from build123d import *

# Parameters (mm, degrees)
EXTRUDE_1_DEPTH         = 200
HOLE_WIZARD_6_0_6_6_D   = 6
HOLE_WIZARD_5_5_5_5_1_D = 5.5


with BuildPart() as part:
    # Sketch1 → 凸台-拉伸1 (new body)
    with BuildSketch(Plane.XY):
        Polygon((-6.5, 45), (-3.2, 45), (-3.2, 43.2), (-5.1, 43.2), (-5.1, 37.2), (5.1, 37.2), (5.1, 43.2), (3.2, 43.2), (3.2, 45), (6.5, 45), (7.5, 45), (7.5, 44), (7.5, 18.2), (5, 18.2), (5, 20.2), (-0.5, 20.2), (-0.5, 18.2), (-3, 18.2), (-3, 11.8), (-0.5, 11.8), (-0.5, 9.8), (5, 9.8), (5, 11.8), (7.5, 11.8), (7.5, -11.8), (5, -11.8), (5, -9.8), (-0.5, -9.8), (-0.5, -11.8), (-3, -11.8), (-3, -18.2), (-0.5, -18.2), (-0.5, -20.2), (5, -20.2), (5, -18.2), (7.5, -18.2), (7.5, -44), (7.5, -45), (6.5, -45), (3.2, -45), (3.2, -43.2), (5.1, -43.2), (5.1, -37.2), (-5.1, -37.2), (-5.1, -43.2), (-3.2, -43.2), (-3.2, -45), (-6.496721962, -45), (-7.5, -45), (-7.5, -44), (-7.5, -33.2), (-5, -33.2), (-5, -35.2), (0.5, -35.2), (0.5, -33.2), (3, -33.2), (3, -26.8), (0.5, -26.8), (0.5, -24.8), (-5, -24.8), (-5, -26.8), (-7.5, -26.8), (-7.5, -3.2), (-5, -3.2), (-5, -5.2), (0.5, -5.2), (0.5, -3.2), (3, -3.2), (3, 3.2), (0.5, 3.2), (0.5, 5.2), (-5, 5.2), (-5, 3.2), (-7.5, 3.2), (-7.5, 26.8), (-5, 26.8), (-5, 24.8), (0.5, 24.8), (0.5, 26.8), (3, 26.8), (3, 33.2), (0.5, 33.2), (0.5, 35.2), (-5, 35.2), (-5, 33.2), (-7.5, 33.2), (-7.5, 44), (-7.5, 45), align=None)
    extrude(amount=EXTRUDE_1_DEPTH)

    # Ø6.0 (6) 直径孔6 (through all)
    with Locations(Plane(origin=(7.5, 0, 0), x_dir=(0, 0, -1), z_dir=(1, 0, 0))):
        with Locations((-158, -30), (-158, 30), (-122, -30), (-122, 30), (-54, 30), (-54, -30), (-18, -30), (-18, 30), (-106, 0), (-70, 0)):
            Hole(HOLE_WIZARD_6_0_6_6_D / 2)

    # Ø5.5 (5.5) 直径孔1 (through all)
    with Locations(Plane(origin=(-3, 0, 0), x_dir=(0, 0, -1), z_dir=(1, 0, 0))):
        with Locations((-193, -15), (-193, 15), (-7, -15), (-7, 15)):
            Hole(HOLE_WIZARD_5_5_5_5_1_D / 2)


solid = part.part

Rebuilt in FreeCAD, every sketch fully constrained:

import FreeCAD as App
import Part
import Sketcher
from FreeCAD import Vector
Q = App.Units.Quantity

doc = App.newDocument("Part")
params = doc.addObject("Spreadsheet::Sheet", "Params")
for row, (alias, value) in enumerate([
    ("sketch1_height", "2 mm"),
    ("sketch1_height2", "6 mm"),
    ("sketch1_width", "4.3 mm"),
    ("sketch1_width2", "2.5 mm"),
    ("sketch1_width3", "5.5 mm"),
    ("pad1_length", "200 mm"),
    ("sketch2_diameter", "6 mm"),
    ("hole_diameter", "6 mm"),
    ("sketch3_diameter", "5.5 mm"),
    ("hole2_diameter", "5.5 mm"),
], start=1):
    params.set(f"A{row}", alias)
    params.set(f"B{row}", "=" + value)
    params.setAlias(f"B{row}", alias)

body = doc.addObject("PartDesign::Body", "Body")

# Sketch on XY plane
sketch1 = body.newObject("Sketcher::SketchObject", "Sketch")
sketch1.AttachmentSupport = (doc.getObject("XY_Plane"), [""])
sketch1.MapMode = "FlatFace"
sketch1.addGeometry([
    Part.LineSegment(Vector(-3.2, 45, 0), Vector(-7.5, 45, 0)),  # 0
    Part.LineSegment(Vector(-7.5, 45, 0), Vector(-7.5, 33.2, 0)),  # 1
    Part.LineSegment(Vector(-7.5, 33.2, 0), Vector(-5, 33.2, 0)),  # 2
    Part.LineSegment(Vector(-5, 33.2, 0), Vector(-5, 35.2, 0)),  # 3
    Part.LineSegment(Vector(-5, 35.2, 0), Vector(0.5, 35.2, 0)),  # 4
    Part.LineSegment(Vector(0.5, 35.2, 0), Vector(0.5, 33.2, 0)),  # 5
    Part.LineSegment(Vector(0.5, 33.2, 0), Vector(3, 33.2, 0)),  # 6
    Part.LineSegment(Vector(3, 33.2, 0), Vector(3, 26.8, 0)),  # 7
    Part.LineSegment(Vector(3, 26.8, 0), Vector(0.5, 26.8, 0)),  # 8
    Part.LineSegment(Vector(0.5, 26.8, 0), Vector(0.5, 24.8, 0)),  # 9
    Part.LineSegment(Vector(0.5, 24.8, 0), Vector(-5, 24.8, 0)),  # 10
    Part.LineSegment(Vector(-5, 24.8, 0), Vector(-5, 26.8, 0)),  # 11
    Part.LineSegment(Vector(-5, 26.8, 0), Vector(-7.5, 26.8, 0)),  # 12
    Part.LineSegment(Vector(-7.5, 26.8, 0), Vector(-7.5, 3.2, 0)),  # 13
    Part.LineSegment(Vector(-7.5, 3.2, 0), Vector(-5, 3.2, 0)),  # 14
    Part.LineSegment(Vector(-5, 3.2, 0), Vector(-5, 5.2, 0)),  # 15
    Part.LineSegment(Vector(-5, 5.2, 0), Vector(0.5, 5.2, 0)),  # 16
    Part.LineSegment(Vector(0.5, 5.2, 0), Vector(0.5, 3.2, 0)),  # 17
    Part.LineSegment(Vector(0.5, 3.2, 0), Vector(3, 3.2, 0)),  # 18
    Part.LineSegment(Vector(3, 3.2, 0), Vector(3, -3.2, 0)),  # 19
    Part.LineSegment(Vector(3, -3.2, 0), Vector(0.5, -3.2, 0)),  # 20
    Part.LineSegment(Vector(0.5, -3.2, 0), Vector(0.5, -5.2, 0)),  # 21
    Part.LineSegment(Vector(0.5, -5.2, 0), Vector(-5, -5.2, 0)),  # 22
    Part.LineSegment(Vector(-5, -5.2, 0), Vector(-5, -3.2, 0)),  # 23
    Part.LineSegment(Vector(-5, -3.2, 0), Vector(-7.5, -3.2, 0)),  # 24
    Part.LineSegment(Vector(-7.5, -3.2, 0), Vector(-7.5, -26.8, 0)),  # 25
    Part.LineSegment(Vector(-7.5, -26.8, 0), Vector(-5, -26.8, 0)),  # 26
    Part.LineSegment(Vector(-5, -26.8, 0), Vector(-5, -24.8, 0)),  # 27
    Part.LineSegment(Vector(-5, -24.8, 0), Vector(0.5, -24.8, 0)),  # 28
    Part.LineSegment(Vector(0.5, -24.8, 0), Vector(0.5, -26.8, 0)),  # 29
    Part.LineSegment(Vector(0.5, -26.8, 0), Vector(3, -26.8, 0)),  # 30
    Part.LineSegment(Vector(3, -26.8, 0), Vector(3, -33.2, 0)),  # 31
    Part.LineSegment(Vector(3, -33.2, 0), Vector(0.5, -33.2, 0)),  # 32
    Part.LineSegment(Vector(0.5, -33.2, 0), Vector(0.5, -35.2, 0)),  # 33
    Part.LineSegment(Vector(0.5, -35.2, 0), Vector(-5, -35.2, 0)),  # 34
    Part.LineSegment(Vector(-5, -35.2, 0), Vector(-5, -33.2, 0)),  # 35
    Part.LineSegment(Vector(-5, -33.2, 0), Vector(-7.5, -33.2, 0)),  # 36
    Part.LineSegment(Vector(-7.5, -33.2, 0), Vector(-7.5, -45, 0)),  # 37
    Part.LineSegment(Vector(-7.5, -45, 0), Vector(-3.2, -45, 0)),  # 38
    Part.LineSegment(Vector(-3.2, -45, 0), Vector(-3.2, -43.2, 0)),  # 39
    Part.LineSegment(Vector(-3.2, -43.2, 0), Vector(-5.1, -43.2, 0)),  # 40
    Part.LineSegment(Vector(-5.1, -43.2, 0), Vector(-5.1, -37.2, 0)),  # 41
    Part.LineSegment(Vector(-5.1, -37.2, 0), Vector(5.1, -37.2, 0)),  # 42
    Part.LineSegment(Vector(5.1, -37.2, 0), Vector(5.1, -43.2, 0)),  # 43
    Part.LineSegment(Vector(5.1, -43.2, 0), Vector(3.2, -43.2, 0)),  # 44
    Part.LineSegment(Vector(3.2, -43.2, 0), Vector(3.2, -45, 0)),  # 45
    Part.LineSegment(Vector(3.2, -45, 0), Vector(7.5, -45, 0)),  # 46
    Part.LineSegment(Vector(7.5, -45, 0), Vector(7.5, -18.2, 0)),  # 47
    Part.LineSegment(Vector(7.5, -18.2, 0), Vector(5, -18.2, 0)),  # 48
    Part.LineSegment(Vector(5, -18.2, 0), Vector(5, -20.2, 0)),  # 49
    Part.LineSegment(Vector(5, -20.2, 0), Vector(-0.5, -20.2, 0)),  # 50
    Part.LineSegment(Vector(-0.5, -20.2, 0), Vector(-0.5, -18.2, 0)),  # 51
    Part.LineSegment(Vector(-0.5, -18.2, 0), Vector(-3, -18.2, 0)),  # 52
    Part.LineSegment(Vector(-3, -18.2, 0), Vector(-3, -11.8, 0)),  # 53
    Part.LineSegment(Vector(-3, -11.8, 0), Vector(-0.5, -11.8, 0)),  # 54
    Part.LineSegment(Vector(-0.5, -11.8, 0), Vector(-0.5, -9.8, 0)),  # 55
    Part.LineSegment(Vector(-0.5, -9.8, 0), Vector(5, -9.8, 0)),  # 56
    Part.LineSegment(Vector(5, -9.8, 0), Vector(5, -11.8, 0)),  # 57
    Part.LineSegment(Vector(5, -11.8, 0), Vector(7.5, -11.8, 0)),  # 58
    Part.LineSegment(Vector(7.5, -11.8, 0), Vector(7.5, 11.8, 0)),  # 59
    Part.LineSegment(Vector(7.5, 11.8, 0), Vector(5, 11.8, 0)),  # 60
    Part.LineSegment(Vector(5, 11.8, 0), Vector(5, 9.8, 0)),  # 61
    Part.LineSegment(Vector(5, 9.8, 0), Vector(-0.5, 9.8, 0)),  # 62
    Part.LineSegment(Vector(-0.5, 9.8, 0), Vector(-0.5, 11.8, 0)),  # 63
    Part.LineSegment(Vector(-0.5, 11.8, 0), Vector(-3, 11.8, 0)),  # 64
    Part.LineSegment(Vector(-3, 11.8, 0), Vector(-3, 18.2, 0)),  # 65
    Part.LineSegment(Vector(-3, 18.2, 0), Vector(-0.5, 18.2, 0)),  # 66
    Part.LineSegment(Vector(-0.5, 18.2, 0), Vector(-0.5, 20.2, 0)),  # 67
    Part.LineSegment(Vector(-0.5, 20.2, 0), Vector(5, 20.2, 0)),  # 68
    Part.LineSegment(Vector(5, 20.2, 0), Vector(5, 18.2, 0)),  # 69
    Part.LineSegment(Vector(5, 18.2, 0), Vector(7.5, 18.2, 0)),  # 70
    Part.LineSegment(Vector(7.5, 18.2, 0), Vector(7.5, 45, 0)),  # 71
    Part.LineSegment(Vector(7.5, 45, 0), Vector(3.2, 45, 0)),  # 72
    Part.LineSegment(Vector(3.2, 45, 0), Vector(3.2, 43.2, 0)),  # 73
    Part.LineSegment(Vector(3.2, 43.2, 0), Vector(5.1, 43.2, 0)),  # 74
    Part.LineSegment(Vector(5.1, 43.2, 0), Vector(5.1, 37.2, 0)),  # 75
    Part.LineSegment(Vector(5.1, 37.2, 0), Vector(-5.1, 37.2, 0)),  # 76
    Part.LineSegment(Vector(-5.1, 37.2, 0), Vector(-5.1, 43.2, 0)),  # 77
    Part.LineSegment(Vector(-5.1, 43.2, 0), Vector(-3.2, 43.2, 0)),  # 78
    Part.LineSegment(Vector(-3.2, 43.2, 0), Vector(-3.2, 45, 0)),  # 79
], False)
sketch1.addConstraint([
    Sketcher.Constraint("Coincident", 0, 2, 1, 1),
    Sketcher.Constraint("Coincident", 1, 2, 2, 1),
    Sketcher.Constraint("Coincident", 2, 2, 3, 1),
    Sketcher.Constraint("Coincident", 3, 2, 4, 1),
    Sketcher.Constraint("Coincident", 4, 2, 5, 1),
    Sketcher.Constraint("Coincident", 5, 2, 6, 1),
    Sketcher.Constraint("Coincident", 6, 2, 7, 1),
    Sketcher.Constraint("Coincident", 7, 2, 8, 1),
    Sketcher.Constraint("Coincident", 8, 2, 9, 1),
    Sketcher.Constraint("Coincident", 9, 2, 10, 1),
    Sketcher.Constraint("Coincident", 10, 2, 11, 1),
    Sketcher.Constraint("Coincident", 11, 2, 12, 1),
    Sketcher.Constraint("Coincident", 12, 2, 13, 1),
    Sketcher.Constraint("Coincident", 13, 2, 14, 1),
    Sketcher.Constraint("Coincident", 14, 2, 15, 1),
    Sketcher.Constraint("Coincident", 15, 2, 16, 1),
    Sketcher.Constraint("Coincident", 16, 2, 17, 1),
    Sketcher.Constraint("Coincident", 17, 2, 18, 1),
    Sketcher.Constraint("Coincident", 18, 2, 19, 1),
    Sketcher.Constraint("Coincident", 19, 2, 20, 1),
    Sketcher.Constraint("Coincident", 20, 2, 21, 1),
    Sketcher.Constraint("Coincident", 21, 2, 22, 1),
    Sketcher.Constraint("Coincident", 22, 2, 23, 1),
    Sketcher.Constraint("Coincident", 23, 2, 24, 1),
    Sketcher.Constraint("Coincident", 24, 2, 25, 1),
    Sketcher.Constraint("Coincident", 25, 2, 26, 1),
    Sketcher.Constraint("Coincident", 26, 2, 27, 1),
    Sketcher.Constraint("Coincident", 27, 2, 28, 1),
    Sketcher.Constraint("Coincident", 28, 2, 29, 1),
    Sketcher.Constraint("Coincident", 29, 2, 30, 1),
    Sketcher.Constraint("Coincident", 30, 2, 31, 1),
    Sketcher.Constraint("Coincident", 31, 2, 32, 1),
    Sketcher.Constraint("Coincident", 32, 2, 33, 1),
    Sketcher.Constraint("Coincident", 33, 2, 34, 1),
    Sketcher.Constraint("Coincident", 34, 2, 35, 1),
    Sketcher.Constraint("Coincident", 35, 2, 36, 1),
    Sketcher.Constraint("Coincident", 36, 2, 37, 1),
    Sketcher.Constraint("Coincident", 37, 2, 38, 1),
    Sketcher.Constraint("Coincident", 38, 2, 39, 1),
    Sketcher.Constraint("Coincident", 39, 2, 40, 1),
    Sketcher.Constraint("Coincident", 40, 2, 41, 1),
    Sketcher.Constraint("Coincident", 41, 2, 42, 1),
    Sketcher.Constraint("Coincident", 42, 2, 43, 1),
    Sketcher.Constraint("Coincident", 43, 2, 44, 1),
    Sketcher.Constraint("Coincident", 44, 2, 45, 1),
    Sketcher.Constraint("Coincident", 45, 2, 46, 1),
    Sketcher.Constraint("Coincident", 46, 2, 47, 1),
    Sketcher.Constraint("Coincident", 47, 2, 48, 1),
    Sketcher.Constraint("Coincident", 48, 2, 49, 1),
    Sketcher.Constraint("Coincident", 49, 2, 50, 1),
    Sketcher.Constraint("Coincident", 50, 2, 51, 1),
    Sketcher.Constraint("Coincident", 51, 2, 52, 1),
    Sketcher.Constraint("Coincident", 52, 2, 53, 1),
    Sketcher.Constraint("Coincident", 53, 2, 54, 1),
    Sketcher.Constraint("Coincident", 54, 2, 55, 1),
    Sketcher.Constraint("Coincident", 55, 2, 56, 1),
    Sketcher.Constraint("Coincident", 56, 2, 57, 1),
    Sketcher.Constraint("Coincident", 57, 2, 58, 1),
    Sketcher.Constraint("Coincident", 58, 2, 59, 1),
    Sketcher.Constraint("Coincident", 59, 2, 60, 1),
    Sketcher.Constraint("Coincident", 60, 2, 61, 1),
    Sketcher.Constraint("Coincident", 61, 2, 62, 1),
    Sketcher.Constraint("Coincident", 62, 2, 63, 1),
    Sketcher.Constraint("Coincident", 63, 2, 64, 1),
    Sketcher.Constraint("Coincident", 64, 2, 65, 1),
    Sketcher.Constraint("Coincident", 65, 2, 66, 1),
    Sketcher.Constraint("Coincident", 66, 2, 67, 1),
    Sketcher.Constraint("Coincident", 67, 2, 68, 1),
    Sketcher.Constraint("Coincident", 68, 2, 69, 1),
    Sketcher.Constraint("Coincident", 69, 2, 70, 1),
    Sketcher.Constraint("Coincident", 70, 2, 71, 1),
    Sketcher.Constraint("Coincident", 71, 2, 72, 1),
    Sketcher.Constraint("Coincident", 72, 2, 73, 1),
    Sketcher.Constraint("Coincident", 73, 2, 74, 1),
    Sketcher.Constraint("Coincident", 74, 2, 75, 1),
    Sketcher.Constraint("Coincident", 75, 2, 76, 1),
    Sketcher.Constraint("Coincident", 76, 2, 77, 1),
    Sketcher.Constraint("Coincident", 77, 2, 78, 1),
    Sketcher.Constraint("Coincident", 78, 2, 79, 1),
    Sketcher.Constraint("Coincident", 79, 2, 0, 1),
    Sketcher.Constraint("Horizontal", 0),
    Sketcher.Constraint("Vertical", 1),
    Sketcher.Constraint("Horizontal", 2),
    Sketcher.Constraint("Vertical", 3),
    Sketcher.Constraint("Horizontal", 4),
    Sketcher.Constraint("Vertical", 5),
    Sketcher.Constraint("Horizontal", 6),
    Sketcher.Constraint("Vertical", 7),
    Sketcher.Constraint("Horizontal", 8),
    Sketcher.Constraint("Vertical", 9),
    Sketcher.Constraint("Horizontal", 10),
    Sketcher.Constraint("Vertical", 11),
    Sketcher.Constraint("Horizontal", 12),
    Sketcher.Constraint("Vertical", 13),
    Sketcher.Constraint("Horizontal", 14),
    Sketcher.Constraint("Vertical", 15),
    Sketcher.Constraint("Horizontal", 16),
    Sketcher.Constraint("Vertical", 17),
    Sketcher.Constraint("Horizontal", 18),
    Sketcher.Constraint("Vertical", 19),
    Sketcher.Constraint("Horizontal", 20),
    Sketcher.Constraint("Vertical", 21),
    Sketcher.Constraint("Horizontal", 22),
    Sketcher.Constraint("Vertical", 23),
    Sketcher.Constraint("Horizontal", 24),
    Sketcher.Constraint("Vertical", 25),
    Sketcher.Constraint("Horizontal", 26),
    Sketcher.Constraint("Vertical", 27),
    Sketcher.Constraint("Horizontal", 28),
    Sketcher.Constraint("Vertical", 29),
    Sketcher.Constraint("Horizontal", 30),
    Sketcher.Constraint("Vertical", 31),
    Sketcher.Constraint("Horizontal", 32),
    Sketcher.Constraint("Vertical", 33),
    Sketcher.Constraint("Horizontal", 34),
    Sketcher.Constraint("Vertical", 35),
    Sketcher.Constraint("Horizontal", 36),
    Sketcher.Constraint("Vertical", 37),
    Sketcher.Constraint("Horizontal", 38),
    Sketcher.Constraint("Vertical", 39),
    Sketcher.Constraint("Horizontal", 40),
    Sketcher.Constraint("Vertical", 41),
    Sketcher.Constraint("Horizontal", 42),
    Sketcher.Constraint("Vertical", 43),
    Sketcher.Constraint("Horizontal", 44),
    Sketcher.Constraint("Vertical", 45),
    Sketcher.Constraint("Horizontal", 46),
    Sketcher.Constraint("Vertical", 47),
    Sketcher.Constraint("Horizontal", 48),
    Sketcher.Constraint("Vertical", 49),
    Sketcher.Constraint("Horizontal", 50),
    Sketcher.Constraint("Vertical", 51),
    Sketcher.Constraint("Horizontal", 52),
    Sketcher.Constraint("Vertical", 53),
    Sketcher.Constraint("Horizontal", 54),
    Sketcher.Constraint("Vertical", 55),
    Sketcher.Constraint("Horizontal", 56),
    Sketcher.Constraint("Vertical", 57),
    Sketcher.Constraint("Horizontal", 58),
    Sketcher.Constraint("Vertical", 59),
    Sketcher.Constraint("Horizontal", 60),
    Sketcher.Constraint("Vertical", 61),
    Sketcher.Constraint("Horizontal", 62),
    Sketcher.Constraint("Vertical", 63),
    Sketcher.Constraint("Horizontal", 64),
    Sketcher.Constraint("Vertical", 65),
    Sketcher.Constraint("Horizontal", 66),
    Sketcher.Constraint("Vertical", 67),
    Sketcher.Constraint("Horizontal", 68),
    Sketcher.Constraint("Vertical", 69),
    Sketcher.Constraint("Horizontal", 70),
    Sketcher.Constraint("Vertical", 71),
    Sketcher.Constraint("Horizontal", 72),
    Sketcher.Constraint("Vertical", 73),
    Sketcher.Constraint("Horizontal", 74),
    Sketcher.Constraint("Vertical", 75),
    Sketcher.Constraint("Horizontal", 76),
    Sketcher.Constraint("Vertical", 77),
    Sketcher.Constraint("Horizontal", 78),
    Sketcher.Constraint("Vertical", 79),
    Sketcher.Constraint("Symmetric", 0, 2, 46, 2, -1, 1),
    Sketcher.Constraint("Symmetric", 37, 2, 71, 2, -1, 1),
    Sketcher.Constraint("Symmetric", 39, 2, 73, 2, -1, 1),
    Sketcher.Constraint("Symmetric", 41, 2, 75, 2, -1, 1),
    Sketcher.Constraint("Symmetric", 43, 2, 77, 2, -1, 1),
    Sketcher.Constraint("Symmetric", 40, 2, 43, 2, -2),
    Sketcher.Constraint("Symmetric", 38, 2, 45, 2, -2),
    Sketcher.Constraint("Symmetric", 17, 2, 20, 2, -1),
    Sketcher.Constraint("Symmetric", 15, 2, 22, 2, -1),
    Sketcher.Constraint("Symmetric", 13, 2, 24, 2, -1),
    Sketcher.Constraint("Symmetric", 11, 2, 26, 2, -1),
    Sketcher.Constraint("Symmetric", 9, 2, 28, 2, -1),
    Sketcher.Constraint("Symmetric", 7, 2, 30, 2, -1),
    Sketcher.Constraint("Symmetric", 5, 2, 32, 2, -1),
    Sketcher.Constraint("Symmetric", 3, 2, 34, 2, -1),
    Sketcher.Constraint("Symmetric", 1, 2, 36, 2, -1),
    Sketcher.Constraint("Symmetric", 57, 2, 60, 2, -1),
    Sketcher.Constraint("Symmetric", 55, 2, 62, 2, -1),
    Sketcher.Constraint("Symmetric", 53, 2, 64, 2, -1),
    Sketcher.Constraint("Symmetric", 51, 2, 66, 2, -1),
    Sketcher.Constraint("Symmetric", 49, 2, 68, 2, -1),
    Sketcher.Constraint("Horizontal", 2, 2, 5, 2),
    Sketcher.Constraint("Horizontal", 8, 2, 11, 2),
    Sketcher.Constraint("Horizontal", 14, 2, 17, 2),
    Sketcher.Constraint("Horizontal", 48, 2, 51, 2),
    Sketcher.Constraint("Horizontal", 54, 2, 57, 2),
    Sketcher.Constraint("Horizontal", 66, 2, 69, 2),
    Sketcher.Constraint("Vertical", 5, 2, 8, 2),
    Sketcher.Constraint("Vertical", 3, 2, 10, 2),
    Sketcher.Constraint("Vertical", 1, 2, 12, 2),
    Sketcher.Constraint("Vertical", 11, 2, 14, 2),
    Sketcher.Constraint("Vertical", 9, 2, 16, 2),
    Sketcher.Constraint("Vertical", 7, 2, 18, 2),
    Sketcher.Constraint("Vertical", 51, 2, 54, 2),
    Sketcher.Constraint("Vertical", 49, 2, 56, 2),
    Sketcher.Constraint("Vertical", 47, 2, 58, 2),
    Sketcher.Constraint("Vertical", 39, 2, 78, 2),
    Sketcher.Constraint("Equal", 2, 6),
    Sketcher.Constraint("Equal", 36, 48),
    Sketcher.Constraint("Equal", 34, 50),
    Sketcher.Constraint("Equal", 48, 52),
    Sketcher.Constraint("Equal", 5, 9),
    Sketcher.Constraint("Equal", 11, 15),
    Sketcher.Constraint("Equal", 7, 19),
    Sketcher.Constraint("Equal", 35, 49),
    Sketcher.Constraint("Equal", 31, 53),
    Sketcher.Constraint("Equal", 51, 55),
    Sketcher.Constraint("Equal", 25, 59),
    Sketcher.Constraint("DistanceY", 3, 1, 3, 2, Q("2 mm")),
    Sketcher.Constraint("DistanceY", 41, 1, 41, 2, Q("6 mm")),
    Sketcher.Constraint("DistanceX", 0, 2, 0, 1, Q("4.3 mm")),
    Sketcher.Constraint("DistanceX", 2, 1, 2, 2, Q("2.5 mm")),
    Sketcher.Constraint("DistanceX", 4, 1, 4, 2, Q("5.5 mm")),
    Sketcher.Constraint("DistanceX", 40, 2, 40, 1, Q("1.9 mm")),
    Sketcher.Constraint("DistanceX", 42, 1, 42, 2, Q("10.2 mm")),
    Sketcher.Constraint("DistanceY", 1, 2, 1, 1, Q("11.8 mm")),
    Sketcher.Constraint("DistanceY", 7, 2, 7, 1, Q("6.4 mm")),
    Sketcher.Constraint("DistanceY", 13, 2, 13, 1, Q("23.6 mm")),
    Sketcher.Constraint("DistanceY", 39, 1, 39, 2, Q("1.8 mm")),
])
sketch1.setExpression("Constraints[208]", "Params.sketch1_height")
sketch1.setExpression("Constraints[209]", "Params.sketch1_height2")
sketch1.setExpression("Constraints[210]", "Params.sketch1_width")
sketch1.setExpression("Constraints[211]", "Params.sketch1_width2")
sketch1.setExpression("Constraints[212]", "Params.sketch1_width3")
pad1 = body.newObject("PartDesign::Pad", "Pad")
pad1.Profile = sketch1
pad1.setExpression("Length", "Params.pad1_length")

# Sketch on YZ plane
sketch2 = body.newObject("Sketcher::SketchObject", "Sketch001")
sketch2.AttachmentSupport = (doc.getObject("YZ_Plane"), [""])
sketch2.MapMode = "FlatFace"
sketch2.AttachmentOffset = App.Placement(Vector(0, 0, 7.5), App.Rotation())
sketch2.addGeometry([
    Part.Circle(Vector(-30, 158, 0), Vector(0, 0, 1), 3),  # 0
    Part.Circle(Vector(30, 158, 0), Vector(0, 0, 1), 3),  # 1
    Part.Circle(Vector(-30, 122, 0), Vector(0, 0, 1), 3),  # 2
    Part.Circle(Vector(30, 122, 0), Vector(0, 0, 1), 3),  # 3
    Part.Circle(Vector(30, 54, 0), Vector(0, 0, 1), 3),  # 4
    Part.Circle(Vector(-30, 54, 0), Vector(0, 0, 1), 3),  # 5
    Part.Circle(Vector(-30, 18, 0), Vector(0, 0, 1), 3),  # 6
    Part.Circle(Vector(30, 18, 0), Vector(0, 0, 1), 3),  # 7
    Part.Circle(Vector(0, 106, 0), Vector(0, 0, 1), 3),  # 8
    Part.Circle(Vector(0, 70, 0), Vector(0, 0, 1), 3),  # 9
], False)
sketch2.addConstraint([
    Sketcher.Constraint("Equal", 0, 1),
    Sketcher.Constraint("Equal", 1, 2),
    Sketcher.Constraint("Equal", 2, 3),
    Sketcher.Constraint("Equal", 3, 4),
    Sketcher.Constraint("Equal", 4, 5),
    Sketcher.Constraint("Equal", 5, 6),
    Sketcher.Constraint("Equal", 6, 7),
    Sketcher.Constraint("Equal", 7, 8),
    Sketcher.Constraint("Equal", 8, 9),
    Sketcher.Constraint("Symmetric", 0, 3, 1, 3, -2),
    Sketcher.Constraint("Symmetric", 2, 3, 3, 3, -2),
    Sketcher.Constraint("Symmetric", 4, 3, 5, 3, -2),
    Sketcher.Constraint("Symmetric", 6, 3, 7, 3, -2),
    Sketcher.Constraint("PointOnObject", 8, 3, -2),
    Sketcher.Constraint("PointOnObject", 9, 3, -2),
    Sketcher.Constraint("Vertical", 0, 3, 2, 3),
    Sketcher.Constraint("Vertical", 3, 3, 4, 3),
    Sketcher.Constraint("Vertical", 5, 3, 6, 3),
    Sketcher.Constraint("Diameter", 0, Q("6 mm")),
    Sketcher.Constraint("DistanceX", 0, 3, -1, 1, Q("30 mm")),
    Sketcher.Constraint("DistanceY", -1, 1, 0, 3, Q("158 mm")),
    Sketcher.Constraint("DistanceY", -1, 1, 2, 3, Q("122 mm")),
    Sketcher.Constraint("DistanceY", -1, 1, 4, 3, Q("54 mm")),
    Sketcher.Constraint("DistanceY", -1, 1, 6, 3, Q("18 mm")),
    Sketcher.Constraint("DistanceY", -1, 1, 8, 3, Q("106 mm")),
    Sketcher.Constraint("DistanceY", -1, 1, 9, 3, Q("70 mm")),
])
sketch2.setExpression("Constraints[18]", "Params.sketch2_diameter")
doc.recompute()
hole = body.newObject("PartDesign::Hole", "Hole")
hole.Profile = sketch2
hole.ThreadType = "None"
hole.setExpression("Diameter", "Params.hole_diameter")
hole.DepthType = "ThroughAll"

# Sketch on YZ plane
sketch3 = body.newObject("Sketcher::SketchObject", "Sketch002")
sketch3.AttachmentSupport = (doc.getObject("YZ_Plane"), [""])
sketch3.MapMode = "FlatFace"
sketch3.AttachmentOffset = App.Placement(Vector(0, 0, -3), App.Rotation())
sketch3.addGeometry([
    Part.Circle(Vector(-15, 193, 0), Vector(0, 0, 1), 2.8),
    Part.Circle(Vector(15, 193, 0), Vector(0, 0, 1), 2.8),
    Part.Circle(Vector(-15, 7, 0), Vector(0, 0, 1), 2.8),
    Part.Circle(Vector(15, 7, 0), Vector(0, 0, 1), 2.8),
], False)
sketch3.addConstraint([
    Sketcher.Constraint("Equal", 0, 1),
    Sketcher.Constraint("Equal", 1, 2),
    Sketcher.Constraint("Equal", 2, 3),
    Sketcher.Constraint("Symmetric", 0, 3, 1, 3, -2),
    Sketcher.Constraint("Symmetric", 2, 3, 3, 3, -2),
    Sketcher.Constraint("Vertical", 0, 3, 2, 3),
    Sketcher.Constraint("Diameter", 0, Q("5.5 mm")),
    Sketcher.Constraint("DistanceX", 0, 3, -1, 1, Q("15 mm")),
    Sketcher.Constraint("DistanceY", -1, 1, 0, 3, Q("193 mm")),
    Sketcher.Constraint("DistanceY", -1, 1, 2, 3, Q("7 mm")),
])
sketch3.setExpression("Constraints[6]", "Params.sketch3_diameter")
doc.recompute()
hole2 = body.newObject("PartDesign::Hole", "Hole001")
hole2.Profile = sketch3
hole2.ThreadType = "None"
hole2.setExpression("Diameter", "Params.hole2_diameter")
hole2.DepthType = "ThroughAll"

doc.recompute()
